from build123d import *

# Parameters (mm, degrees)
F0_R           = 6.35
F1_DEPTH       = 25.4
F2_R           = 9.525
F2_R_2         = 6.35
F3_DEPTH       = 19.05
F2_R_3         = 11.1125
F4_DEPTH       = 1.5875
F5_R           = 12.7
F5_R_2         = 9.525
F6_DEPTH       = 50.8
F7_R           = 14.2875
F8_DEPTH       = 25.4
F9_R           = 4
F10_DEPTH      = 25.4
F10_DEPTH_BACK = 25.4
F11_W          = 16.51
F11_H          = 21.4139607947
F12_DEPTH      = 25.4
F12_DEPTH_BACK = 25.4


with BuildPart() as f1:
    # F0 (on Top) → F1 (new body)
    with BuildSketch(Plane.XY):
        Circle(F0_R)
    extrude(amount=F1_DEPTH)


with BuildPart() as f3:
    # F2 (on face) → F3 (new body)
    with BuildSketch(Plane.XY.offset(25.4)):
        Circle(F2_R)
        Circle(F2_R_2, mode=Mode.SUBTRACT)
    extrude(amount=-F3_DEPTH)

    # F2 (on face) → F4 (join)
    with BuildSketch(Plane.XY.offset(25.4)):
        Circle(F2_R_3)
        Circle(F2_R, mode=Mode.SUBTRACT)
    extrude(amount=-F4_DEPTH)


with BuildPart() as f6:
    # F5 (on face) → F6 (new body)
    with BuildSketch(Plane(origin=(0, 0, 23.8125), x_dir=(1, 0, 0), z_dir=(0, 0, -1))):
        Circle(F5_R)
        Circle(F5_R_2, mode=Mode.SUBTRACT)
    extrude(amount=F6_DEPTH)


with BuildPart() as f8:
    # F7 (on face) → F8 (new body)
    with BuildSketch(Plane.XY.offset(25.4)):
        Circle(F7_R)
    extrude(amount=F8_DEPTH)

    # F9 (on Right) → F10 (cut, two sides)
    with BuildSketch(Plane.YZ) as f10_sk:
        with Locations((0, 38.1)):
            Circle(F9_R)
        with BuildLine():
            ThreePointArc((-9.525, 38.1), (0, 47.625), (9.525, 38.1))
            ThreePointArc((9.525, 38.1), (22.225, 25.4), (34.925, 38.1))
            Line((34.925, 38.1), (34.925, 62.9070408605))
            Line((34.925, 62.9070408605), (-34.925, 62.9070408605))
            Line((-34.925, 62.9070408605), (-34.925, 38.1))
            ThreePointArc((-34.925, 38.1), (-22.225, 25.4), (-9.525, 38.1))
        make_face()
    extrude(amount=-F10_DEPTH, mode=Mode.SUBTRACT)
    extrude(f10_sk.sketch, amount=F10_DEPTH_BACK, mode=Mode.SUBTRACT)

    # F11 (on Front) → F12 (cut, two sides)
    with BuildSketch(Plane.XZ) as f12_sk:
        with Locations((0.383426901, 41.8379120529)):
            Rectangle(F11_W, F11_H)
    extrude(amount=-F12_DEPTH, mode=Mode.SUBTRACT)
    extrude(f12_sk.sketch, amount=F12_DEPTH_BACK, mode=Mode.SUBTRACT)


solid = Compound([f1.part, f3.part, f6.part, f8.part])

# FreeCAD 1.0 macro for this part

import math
import FreeCAD as App
import Part
import Sketcher
Q = App.Units.Quantity


def add_polygon(sketch, points):
    """Adds a closed chain of lines whose ends are joined by coincident constraints."""
    first, n = sketch.GeometryCount, len(points)
    for a, b in zip(points, points[1:] + points[:1]):
        sketch.addGeometry(Part.LineSegment(App.Vector(*a, 0), App.Vector(*b, 0)), False)
    for i in range(n):
        sketch.addConstraint(Sketcher.Constraint("Coincident", first + i, 2, first + (i + 1) % n, 1))

doc = App.newDocument("Part")
body = doc.addObject("PartDesign::Body", "Body")

sketch1 = doc.addObject("Sketcher::SketchObject", "Sketch")
body.addObject(sketch1)
sketch1.AttachmentSupport = (doc.XY_Plane, [""])
sketch1.MapMode = "FlatFace"
sketch1.addGeometry(Part.Circle(App.Vector(0, 0, 0), App.Vector(0, 0, 1), 6), False)
sketch1.addConstraint(Sketcher.Constraint("Coincident", 0, 3, -1, 1))
sketch1.addConstraint(Sketcher.Constraint("Diameter", 0, Q("0.5 in")))
pad1 = doc.addObject("PartDesign::Pad", "Pad")
body.addObject(pad1)
pad1.Profile = sketch1
pad1.Length = Q("1 in")
body2 = doc.addObject("PartDesign::Body", "Body001")

sketch2 = doc.addObject("Sketcher::SketchObject", "Sketch001")
body2.addObject(sketch2)
sketch2.AttachmentSupport = (doc.getObject("XY_Plane001"), [""])
sketch2.MapMode = "FlatFace"
sketch2.AttachmentOffset = App.Placement(App.Vector(0, 0, 1 * 25.4), App.Rotation())
sketch2.addGeometry(Part.Circle(App.Vector(0, 0, 0), App.Vector(0, 0, 1), 10), False)
sketch2.addGeometry(Part.Circle(App.Vector(0, 0, 0), App.Vector(0, 0, 1), 6), False)
sketch2.addConstraint(Sketcher.Constraint("Coincident", 0, 3, -1, 1))
sketch2.addConstraint(Sketcher.Constraint("Coincident", 1, 3, -1, 1))
sketch2.addConstraint(Sketcher.Constraint("Diameter", 1, Q("0.5 in")))
sketch2.addConstraint(Sketcher.Constraint("Diameter", 0, Q("0.75 in")))
pad2 = doc.addObject("PartDesign::Pad", "Pad001")
body2.addObject(pad2)
pad2.Profile = sketch2
pad2.Length = Q("0.75 in")
pad2.Reversed = True

sketch3 = doc.addObject("Sketcher::SketchObject", "Sketch002")
body2.addObject(sketch3)
sketch3.AttachmentSupport = (doc.getObject("XY_Plane001"), [""])
sketch3.MapMode = "FlatFace"
sketch3.AttachmentOffset = App.Placement(App.Vector(0, 0, 1 * 25.4), App.Rotation())
sketch3.addGeometry(Part.Circle(App.Vector(0, 0, 0), App.Vector(0, 0, 1), 11), False)
sketch3.addGeometry(Part.Circle(App.Vector(0, 0, 0), App.Vector(0, 0, 1), 10), False)
sketch3.addConstraint(Sketcher.Constraint("Coincident", 0, 3, -1, 1))
sketch3.addConstraint(Sketcher.Constraint("Coincident", 1, 3, -1, 1))
sketch3.addConstraint(Sketcher.Constraint("Diameter", 1, Q("0.75 in")))
sketch3.addConstraint(Sketcher.Constraint("Diameter", 0, Q("0.875 in")))
pad3 = doc.addObject("PartDesign::Pad", "Pad002")
body2.addObject(pad3)
pad3.Profile = sketch3
pad3.Length = Q("0.0625 in")
pad3.Reversed = True
body3 = doc.addObject("PartDesign::Body", "Body002")

sketch4 = doc.addObject("Sketcher::SketchObject", "Sketch003")
body3.addObject(sketch4)
sketch4.AttachmentSupport = (doc.getObject("XY_Plane002"), [""])
sketch4.MapMode = "FlatFace"
sketch4.AttachmentOffset = App.Placement(App.Vector(0, 0, 0.9375 * 25.4), App.Rotation())
sketch4.addGeometry(Part.Circle(App.Vector(0, 0, 0), App.Vector(0, 0, 1), 13), False)
sketch4.addGeometry(Part.Circle(App.Vector(0, 0, 0), App.Vector(0, 0, 1), 10), False)
sketch4.addConstraint(Sketcher.Constraint("Coincident", 0, 3, -1, 1))
sketch4.addConstraint(Sketcher.Constraint("Coincident", 1, 3, -1, 1))
sketch4.addConstraint(Sketcher.Constraint("Diameter", 0, Q("1 in")))
sketch4.addConstraint(Sketcher.Constraint("Diameter", 1, Q("0.75 in")))
pad4 = doc.addObject("PartDesign::Pad", "Pad003")
body3.addObject(pad4)
pad4.Profile = sketch4
pad4.Length = Q("2 in")
pad4.Reversed = True
body4 = doc.addObject("PartDesign::Body", "Body003")

sketch5 = doc.addObject("Sketcher::SketchObject", "Sketch004")
body4.addObject(sketch5)
sketch5.AttachmentSupport = (doc.getObject("XY_Plane003"), [""])
sketch5.MapMode = "FlatFace"
sketch5.AttachmentOffset = App.Placement(App.Vector(0, 0, 1 * 25.4), App.Rotation())
sketch5.addGeometry(Part.Circle(App.Vector(0, 0, 0), App.Vector(0, 0, 1), 14), False)
sketch5.addConstraint(Sketcher.Constraint("Coincident", 0, 3, -1, 1))
sketch5.addConstraint(Sketcher.Constraint("Diameter", 0, Q("1.125 in")))
pad5 = doc.addObject("PartDesign::Pad", "Pad004")
body4.addObject(pad5)
pad5.Profile = sketch5
pad5.Length = Q("1 in")

sketch6 = doc.addObject("Sketcher::SketchObject", "Sketch005")
body4.addObject(sketch6)
sketch6.AttachmentSupport = (doc.getObject("YZ_Plane003"), [""])
sketch6.MapMode = "FlatFace"
sketch6.addGeometry(Part.Circle(App.Vector(0, 38.1, 0), App.Vector(0, 0, 1), 4), False)
sketch6.addGeometry(Part.ArcOfCircle(Part.Circle(App.Vector(0, 38.1, 0), App.Vector(0, 0, 1), 9.5), math.radians(0), math.radians(180)), False)
sketch6.addGeometry(Part.ArcOfCircle(Part.Circle(App.Vector(22.2, 38.1, 0), App.Vector(0, 0, 1), 12.7), math.radians(180), math.radians(360)), False)
sketch6.addGeometry(Part.LineSegment(App.Vector(34.9, 38.1, 0), App.Vector(34.9, 62.9, 0)), False)
sketch6.addGeometry(Part.LineSegment(App.Vector(34.9, 62.9, 0), App.Vector(-34.9, 62.9, 0)), False)
sketch6.addGeometry(Part.LineSegment(App.Vector(-34.9, 62.9, 0), App.Vector(-34.9, 38.1, 0)), False)
sketch6.addGeometry(Part.ArcOfCircle(Part.Circle(App.Vector(-22.2, 38.1, 0), App.Vector(0, 0, 1), 12.7), math.radians(180), math.radians(360)), False)
sketch6.addConstraint(Sketcher.Constraint("Tangent", 1, 1, 2, 1))
sketch6.addConstraint(Sketcher.Constraint("Tangent", 2, 2, 3, 1))
sketch6.addConstraint(Sketcher.Constraint("Coincident", 3, 2, 4, 1))
sketch6.addConstraint(Sketcher.Constraint("Coincident", 4, 2, 5, 1))
sketch6.addConstraint(Sketcher.Constraint("Tangent", 5, 2, 6, 1))
sketch6.addConstraint(Sketcher.Constraint("Tangent", 6, 2, 1, 2))
sketch6.addConstraint(Sketcher.Constraint("Vertical", 3))
sketch6.addConstraint(Sketcher.Constraint("Horizontal", 4))
sketch6.addConstraint(Sketcher.Constraint("Vertical", 5))
sketch6.addConstraint(Sketcher.Constraint("Coincident", 1, 3, 0, 3))
sketch6.addConstraint(Sketcher.Constraint("Equal", 2, 6))
sketch6.addConstraint(Sketcher.Constraint("Symmetric", 2, 3, 6, 3, -2))
sketch6.addConstraint(Sketcher.Constraint("Horizontal", 1, 3, 2, 3))
sketch6.addConstraint(Sketcher.Constraint("Radius", 2, Q("0.5 in")))
sketch6.addConstraint(Sketcher.Constraint("Radius", 1, Q("0.375 in")))
sketch6.addConstraint(Sketcher.Constraint("DistanceY", -1, 1, 0, 3, Q("1.5 in")))
sketch6.addConstraint(Sketcher.Constraint("Diameter", 0, Q("8 mm")))
sketch6.addConstraint(Sketcher.Constraint("DistanceY", 3, 1, 3, 2, Q("24.807041 mm")))
pocket1 = doc.addObject("PartDesign::Pocket", "Pocket")
body4.addObject(pocket1)
pocket1.Profile = sketch6
pocket1.Type = "ThroughAll"
pocket1.Midplane = True

sketch7 = doc.addObject("Sketcher::SketchObject", "Sketch006")
body4.addObject(sketch7)
sketch7.AttachmentSupport = (doc.getObject("XZ_Plane003"), [""])
sketch7.MapMode = "FlatFace"
add_polygon(sketch7, [(-8, 53), (-8, 31), (9, 31), (9, 53)])
sketch7.addConstraint(Sketcher.Constraint("Vertical", 0))
sketch7.addConstraint(Sketcher.Constraint("Horizontal", 1))
sketch7.addConstraint(Sketcher.Constraint("Vertical", 2))
sketch7.addConstraint(Sketcher.Constraint("Horizontal", 3))
sketch7.addConstraint(Sketcher.Constraint("DistanceX", 1, 1, 1, 2, Q("0.65 in")))
sketch7.addConstraint(Sketcher.Constraint("DistanceY", 0, 2, 0, 1, Q("21.413961 mm")))
sketch7.addConstraint(Sketcher.Constraint("DistanceY", -1, 1, 0, 2, Q("31.130932 mm")))
sketch7.addConstraint(Sketcher.Constraint("DistanceX", 0, 2, -1, 1, Q("7.871573 mm")))
pocket2 = doc.addObject("PartDesign::Pocket", "Pocket001")
body4.addObject(pocket2)
pocket2.Profile = sketch7
pocket2.Type = "ThroughAll"
pocket2.Midplane = True

doc.recompute()
